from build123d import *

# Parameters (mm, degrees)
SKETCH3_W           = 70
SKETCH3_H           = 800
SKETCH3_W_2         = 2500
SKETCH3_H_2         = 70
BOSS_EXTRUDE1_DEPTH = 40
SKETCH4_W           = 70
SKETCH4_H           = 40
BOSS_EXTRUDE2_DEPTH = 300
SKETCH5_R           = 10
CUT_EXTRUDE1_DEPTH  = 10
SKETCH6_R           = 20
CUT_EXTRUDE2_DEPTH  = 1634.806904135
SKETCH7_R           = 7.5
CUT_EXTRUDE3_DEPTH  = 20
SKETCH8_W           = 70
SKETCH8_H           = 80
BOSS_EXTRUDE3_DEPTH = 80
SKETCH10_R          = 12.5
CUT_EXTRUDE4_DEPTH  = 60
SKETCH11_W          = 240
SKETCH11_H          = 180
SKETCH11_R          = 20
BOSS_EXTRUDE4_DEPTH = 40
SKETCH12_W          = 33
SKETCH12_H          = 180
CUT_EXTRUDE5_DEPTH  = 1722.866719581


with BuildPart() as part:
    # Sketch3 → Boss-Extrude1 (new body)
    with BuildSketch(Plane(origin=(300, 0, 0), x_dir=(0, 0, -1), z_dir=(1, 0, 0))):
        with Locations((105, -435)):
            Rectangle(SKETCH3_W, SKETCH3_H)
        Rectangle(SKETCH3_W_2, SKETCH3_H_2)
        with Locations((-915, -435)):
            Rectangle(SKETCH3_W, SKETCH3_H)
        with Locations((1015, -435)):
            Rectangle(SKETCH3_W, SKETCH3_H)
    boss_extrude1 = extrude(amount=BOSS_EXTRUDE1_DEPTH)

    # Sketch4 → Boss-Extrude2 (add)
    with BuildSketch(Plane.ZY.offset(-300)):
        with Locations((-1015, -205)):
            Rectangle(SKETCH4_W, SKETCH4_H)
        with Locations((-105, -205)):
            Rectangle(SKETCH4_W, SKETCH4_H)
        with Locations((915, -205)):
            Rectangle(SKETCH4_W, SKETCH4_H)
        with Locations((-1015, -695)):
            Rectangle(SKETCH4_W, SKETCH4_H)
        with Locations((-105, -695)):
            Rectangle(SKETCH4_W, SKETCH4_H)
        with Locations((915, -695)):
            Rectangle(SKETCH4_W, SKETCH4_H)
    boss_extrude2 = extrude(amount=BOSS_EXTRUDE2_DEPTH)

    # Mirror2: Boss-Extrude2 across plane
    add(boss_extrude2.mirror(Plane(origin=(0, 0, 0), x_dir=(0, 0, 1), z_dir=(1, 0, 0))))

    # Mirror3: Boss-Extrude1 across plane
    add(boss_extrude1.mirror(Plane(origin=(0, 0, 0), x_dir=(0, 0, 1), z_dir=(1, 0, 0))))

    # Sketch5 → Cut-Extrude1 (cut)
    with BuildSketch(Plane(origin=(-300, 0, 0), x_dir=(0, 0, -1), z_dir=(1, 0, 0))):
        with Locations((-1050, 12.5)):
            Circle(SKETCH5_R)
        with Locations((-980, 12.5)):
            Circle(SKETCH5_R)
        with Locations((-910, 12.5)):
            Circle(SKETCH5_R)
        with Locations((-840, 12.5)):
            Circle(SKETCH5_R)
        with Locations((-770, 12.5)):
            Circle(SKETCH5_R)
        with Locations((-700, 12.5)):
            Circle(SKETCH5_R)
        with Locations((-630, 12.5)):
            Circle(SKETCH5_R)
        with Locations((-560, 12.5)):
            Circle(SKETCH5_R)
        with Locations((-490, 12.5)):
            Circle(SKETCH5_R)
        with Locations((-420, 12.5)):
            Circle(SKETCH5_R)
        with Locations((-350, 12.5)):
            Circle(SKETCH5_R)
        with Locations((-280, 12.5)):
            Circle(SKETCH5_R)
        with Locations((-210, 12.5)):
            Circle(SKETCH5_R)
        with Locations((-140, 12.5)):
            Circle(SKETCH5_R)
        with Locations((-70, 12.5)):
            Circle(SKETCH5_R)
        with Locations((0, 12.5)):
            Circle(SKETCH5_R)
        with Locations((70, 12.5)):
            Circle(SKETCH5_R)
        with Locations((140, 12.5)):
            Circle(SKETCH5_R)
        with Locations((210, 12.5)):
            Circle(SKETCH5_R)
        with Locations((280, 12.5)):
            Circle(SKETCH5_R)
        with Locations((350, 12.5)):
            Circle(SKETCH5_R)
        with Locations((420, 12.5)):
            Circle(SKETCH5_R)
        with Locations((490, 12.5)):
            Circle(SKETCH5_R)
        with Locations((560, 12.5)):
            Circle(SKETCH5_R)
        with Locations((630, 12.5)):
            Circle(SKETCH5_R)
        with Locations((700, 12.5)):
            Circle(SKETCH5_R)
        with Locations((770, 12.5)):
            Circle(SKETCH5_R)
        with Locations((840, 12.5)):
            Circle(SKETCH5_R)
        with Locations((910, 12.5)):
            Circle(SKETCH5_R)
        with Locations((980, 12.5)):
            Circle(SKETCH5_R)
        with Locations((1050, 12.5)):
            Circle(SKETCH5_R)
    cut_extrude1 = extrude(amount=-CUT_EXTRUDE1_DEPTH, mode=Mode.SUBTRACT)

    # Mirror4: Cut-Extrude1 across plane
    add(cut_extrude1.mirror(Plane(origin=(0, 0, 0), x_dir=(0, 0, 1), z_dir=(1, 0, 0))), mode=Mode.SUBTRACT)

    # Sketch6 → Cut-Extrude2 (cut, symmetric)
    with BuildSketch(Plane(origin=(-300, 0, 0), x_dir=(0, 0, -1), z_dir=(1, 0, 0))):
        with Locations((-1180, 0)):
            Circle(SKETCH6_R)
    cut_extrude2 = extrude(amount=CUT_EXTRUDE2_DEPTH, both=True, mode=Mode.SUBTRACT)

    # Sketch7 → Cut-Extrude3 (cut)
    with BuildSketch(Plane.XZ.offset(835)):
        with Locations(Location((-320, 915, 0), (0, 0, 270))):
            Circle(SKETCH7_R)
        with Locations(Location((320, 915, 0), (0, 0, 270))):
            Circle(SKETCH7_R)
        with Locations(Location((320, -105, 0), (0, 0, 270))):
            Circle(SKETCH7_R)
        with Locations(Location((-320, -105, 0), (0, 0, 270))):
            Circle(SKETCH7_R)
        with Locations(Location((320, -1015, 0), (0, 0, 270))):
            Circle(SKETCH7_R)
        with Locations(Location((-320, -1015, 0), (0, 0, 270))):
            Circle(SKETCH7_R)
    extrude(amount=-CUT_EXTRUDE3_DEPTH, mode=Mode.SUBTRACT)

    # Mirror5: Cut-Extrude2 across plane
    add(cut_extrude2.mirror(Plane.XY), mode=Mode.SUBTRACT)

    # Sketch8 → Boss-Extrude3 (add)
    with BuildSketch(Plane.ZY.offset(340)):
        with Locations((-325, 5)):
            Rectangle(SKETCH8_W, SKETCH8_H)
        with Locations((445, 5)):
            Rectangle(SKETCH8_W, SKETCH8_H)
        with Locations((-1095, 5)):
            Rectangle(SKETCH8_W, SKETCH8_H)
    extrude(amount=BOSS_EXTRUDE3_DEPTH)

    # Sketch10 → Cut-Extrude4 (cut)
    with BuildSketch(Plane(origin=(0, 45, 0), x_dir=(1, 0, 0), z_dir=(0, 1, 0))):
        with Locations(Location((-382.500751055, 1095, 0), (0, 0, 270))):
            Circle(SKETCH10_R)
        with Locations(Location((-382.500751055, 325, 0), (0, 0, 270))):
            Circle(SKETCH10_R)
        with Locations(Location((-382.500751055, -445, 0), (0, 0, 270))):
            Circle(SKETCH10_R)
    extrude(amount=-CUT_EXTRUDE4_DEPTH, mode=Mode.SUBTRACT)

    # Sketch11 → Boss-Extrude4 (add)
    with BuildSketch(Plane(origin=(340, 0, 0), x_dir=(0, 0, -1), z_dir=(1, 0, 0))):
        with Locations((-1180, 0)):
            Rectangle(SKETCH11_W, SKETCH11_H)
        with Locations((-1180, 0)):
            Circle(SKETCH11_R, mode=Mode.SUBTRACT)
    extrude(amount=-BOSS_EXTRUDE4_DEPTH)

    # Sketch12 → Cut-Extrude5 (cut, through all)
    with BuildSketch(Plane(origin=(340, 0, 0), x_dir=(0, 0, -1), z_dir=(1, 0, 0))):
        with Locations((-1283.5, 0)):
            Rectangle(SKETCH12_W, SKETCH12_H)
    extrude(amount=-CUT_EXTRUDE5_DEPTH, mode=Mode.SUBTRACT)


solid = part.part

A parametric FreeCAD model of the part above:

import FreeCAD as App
import Part
import Sketcher

V = App.Vector

doc = App.newDocument("Part")
body = doc.addObject("PartDesign::Body", "Body")

# Sketch on YZ plane
sketch1 = doc.addObject("Sketcher::SketchObject", "Sketch")
body.addObject(sketch1)
sketch1.AttachmentSupport = (doc.YZ_Plane, [""])
sketch1.MapMode = "FlatFace"
sketch1.AttachmentOffset = App.Placement(V(0, 0, 300), App.Rotation())
sketch1.addGeometry(Part.LineSegment(V(-35, -70, 0), V(-835, -70, 0)), False)
sketch1.addGeometry(Part.LineSegment(V(-835, -70, 0), V(-835, -140, 0)), False)
sketch1.addGeometry(Part.LineSegment(V(-835, -140, 0), V(-35, -140, 0)), False)
sketch1.addGeometry(Part.LineSegment(V(-35, -140, 0), V(-35, -980, 0)), False)
sketch1.addGeometry(Part.LineSegment(V(-35, -980, 0), V(-835, -980, 0)), False)
sketch1.addGeometry(Part.LineSegment(V(-835, -980, 0), V(-835, -1050, 0)), False)
sketch1.addGeometry(Part.LineSegment(V(-835, -1050, 0), V(-35, -1050, 0)), False)
sketch1.addGeometry(Part.LineSegment(V(-35, -1050, 0), V(-35, -1250, 0)), False)
sketch1.addGeometry(Part.LineSegment(V(-35, -1250, 0), V(35, -1250, 0)), False)
sketch1.addGeometry(Part.LineSegment(V(35, -1250, 0), V(35, 1250, 0)), False)
sketch1.addGeometry(Part.LineSegment(V(35, 1250, 0), V(-35, 1250, 0)), False)
sketch1.addGeometry(Part.LineSegment(V(-35, 1250, 0), V(-35, 950, 0)), False)
sketch1.addGeometry(Part.LineSegment(V(-35, 950, 0), V(-835, 950, 0)), False)
sketch1.addGeometry(Part.LineSegment(V(-835, 950, 0), V(-835, 880, 0)), False)
sketch1.addGeometry(Part.LineSegment(V(-835, 880, 0), V(-35, 880, 0)), False)
sketch1.addGeometry(Part.LineSegment(V(-35, 880, 0), V(-35, -70, 0)), False)
sketch1.addConstraint(Sketcher.Constraint("Coincident", 0, 2, 1, 1))
sketch1.addConstraint(Sketcher.Constraint("Coincident", 1, 2, 2, 1))
sketch1.addConstraint(Sketcher.Constraint("Coincident", 2, 2, 3, 1))
sketch1.addConstraint(Sketcher.Constraint("Coincident", 3, 2, 4, 1))
sketch1.addConstraint(Sketcher.Constraint("Coincident", 4, 2, 5, 1))
sketch1.addConstraint(Sketcher.Constraint("Coincident", 5, 2, 6, 1))
sketch1.addConstraint(Sketcher.Constraint("Coincident", 6, 2, 7, 1))
sketch1.addConstraint(Sketcher.Constraint("Coincident", 7, 2, 8, 1))
sketch1.addConstraint(Sketcher.Constraint("Coincident", 8, 2, 9, 1))
sketch1.addConstraint(Sketcher.Constraint("Coincident", 9, 2, 10, 1))
sketch1.addConstraint(Sketcher.Constraint("Coincident", 10, 2, 11, 1))
sketch1.addConstraint(Sketcher.Constraint("Coincident", 11, 2, 12, 1))
sketch1.addConstraint(Sketcher.Constraint("Coincident", 12, 2, 13, 1))
sketch1.addConstraint(Sketcher.Constraint("Coincident", 13, 2, 14, 1))
sketch1.addConstraint(Sketcher.Constraint("Coincident", 14, 2, 15, 1))
sketch1.addConstraint(Sketcher.Constraint("Coincident", 15, 2, 0, 1))
sketch1.addConstraint(Sketcher.Constraint("Horizontal", 0))
sketch1.addConstraint(Sketcher.Constraint("Vertical", 1))
sketch1.addConstraint(Sketcher.Constraint("Horizontal", 2))
sketch1.addConstraint(Sketcher.Constraint("Vertical", 3))
sketch1.addConstraint(Sketcher.Constraint("Horizontal", 4))
sketch1.addConstraint(Sketcher.Constraint("Vertical", 5))
sketch1.addConstraint(Sketcher.Constraint("Horizontal", 6))
sketch1.addConstraint(Sketcher.Constraint("Vertical", 7))
sketch1.addConstraint(Sketcher.Constraint("Horizontal", 8))
sketch1.addConstraint(Sketcher.Constraint("Vertical", 9))
sketch1.addConstraint(Sketcher.Constraint("Horizontal", 10))
sketch1.addConstraint(Sketcher.Constraint("Vertical", 11))
sketch1.addConstraint(Sketcher.Constraint("Horizontal", 12))
sketch1.addConstraint(Sketcher.Constraint("Vertical", 13))
sketch1.addConstraint(Sketcher.Constraint("Horizontal", 14))
sketch1.addConstraint(Sketcher.Constraint("Vertical", 15))
sketch1.addConstraint(Sketcher.Constraint("Symmetric", 7, 2, 9, 2, -1, 1))
sketch1.addConstraint(Sketcher.Constraint("Vertical", 1, 2, 4, 2))
sketch1.addConstraint(Sketcher.Constraint("Vertical", 3, 2, 6, 2))
sketch1.addConstraint(Sketcher.Constraint("Vertical", 7, 2, 10, 2))
sketch1.addConstraint(Sketcher.Constraint("Vertical", 5, 2, 12, 2))
sketch1.addConstraint(Sketcher.Constraint("Vertical", 11, 2, 14, 2))
sketch1.addConstraint(Sketcher.Constraint("Equal", 10, 1))
sketch1.addConstraint(Sketcher.Constraint("Equal", 1, 5))
sketch1.addConstraint(Sketcher.Constraint("Equal", 5, 13))
sketch1.addConstraint(Sketcher.Constraint("DistanceX", 0, 2, 0, 1, 800.0))
sketch1.addConstraint(Sketcher.Constraint("DistanceX", 8, 1, 8, 2, 70.0))
sketch1.addConstraint(Sketcher.Constraint("DistanceY", 3, 2, 3, 1, 840.0))
sketch1.addConstraint(Sketcher.Constraint("DistanceY", 7, 2, 7, 1, 200.0))
sketch1.addConstraint(Sketcher.Constraint("DistanceY", 9, 1, 9, 2, 2500.0))
sketch1.addConstraint(Sketcher.Constraint("DistanceY", 11, 2, 11, 1, 300.0))
pad1 = doc.addObject("PartDesign::Pad", "Pad")
body.addObject(pad1)
pad1.Profile = sketch1
pad1.Length = 40

# Sketch on YZ plane
sketch2 = doc.addObject("Sketcher::SketchObject", "Sketch001")
body.addObject(sketch2)
sketch2.AttachmentSupport = (doc.YZ_Plane, [""])
sketch2.MapMode = "FlatFace"
sketch2.AttachmentOffset = App.Placement(V(0, 0, 300), App.Rotation())
sketch2.addGeometry(Part.LineSegment(V(-185, -1050, 0), V(-225, -1050, 0)), False)
sketch2.addGeometry(Part.LineSegment(V(-225, -1050, 0), V(-225, -980, 0)), False)
sketch2.addGeometry(Part.LineSegment(V(-225, -980, 0), V(-185, -980, 0)), False)
sketch2.addGeometry(Part.LineSegment(V(-185, -980, 0), V(-185, -1050, 0)), False)
sketch2.addGeometry(Part.LineSegment(V(-185, -140, 0), V(-225, -140, 0)), False)
sketch2.addGeometry(Part.LineSegment(V(-225, -140, 0), V(-225, -70, 0)), False)
sketch2.addGeometry(Part.LineSegment(V(-225, -70, 0), V(-185, -70, 0)), False)
sketch2.addGeometry(Part.LineSegment(V(-185, -70, 0), V(-185, -140, 0)), False)
sketch2.addGeometry(Part.LineSegment(V(-185, 880, 0), V(-225, 880, 0)), False)
sketch2.addGeometry(Part.LineSegment(V(-225, 880, 0), V(-225, 950, 0)), False)
sketch2.addGeometry(Part.LineSegment(V(-225, 950, 0), V(-185, 950, 0)), False)
sketch2.addGeometry(Part.LineSegment(V(-185, 950, 0), V(-185, 880, 0)), False)
sketch2.addGeometry(Part.LineSegment(V(-675, -1050, 0), V(-715, -1050, 0)), False)
sketch2.addGeometry(Part.LineSegment(V(-715, -1050, 0), V(-715, -980, 0)), False)
sketch2.addGeometry(Part.LineSegment(V(-715, -980, 0), V(-675, -980, 0)), False)
sketch2.addGeometry(Part.LineSegment(V(-675, -980, 0), V(-675, -1050, 0)), False)
sketch2.addGeometry(Part.LineSegment(V(-675, -140, 0), V(-715, -140, 0)), False)
sketch2.addGeometry(Part.LineSegment(V(-715, -140, 0), V(-715, -70, 0)), False)
sketch2.addGeometry(Part.LineSegment(V(-715, -70, 0), V(-675, -70, 0)), False)
sketch2.addGeometry(Part.LineSegment(V(-675, -70, 0), V(-675, -140, 0)), False)
sketch2.addGeometry(Part.LineSegment(V(-675, 880, 0), V(-715, 880, 0)), False)
sketch2.addGeometry(Part.LineSegment(V(-715, 880, 0), V(-715, 950, 0)), False)
sketch2.addGeometry(Part.LineSegment(V(-715, 950, 0), V(-675, 950, 0)), False)
sketch2.addGeometry(Part.LineSegment(V(-675, 950, 0), V(-675, 880, 0)), False)
sketch2.addConstraint(Sketcher.Constraint("Coincident", 0, 2, 1, 1))
sketch2.addConstraint(Sketcher.Constraint("Coincident", 1, 2, 2, 1))
sketch2.addConstraint(Sketcher.Constraint("Coincident", 2, 2, 3, 1))
sketch2.addConstraint(Sketcher.Constraint("Coincident", 3, 2, 0, 1))
sketch2.addConstraint(Sketcher.Constraint("Coincident", 4, 2, 5, 1))
sketch2.addConstraint(Sketcher.Constraint("Coincident", 5, 2, 6, 1))
sketch2.addConstraint(Sketcher.Constraint("Coincident", 6, 2, 7, 1))
sketch2.addConstraint(Sketcher.Constraint("Coincident", 7, 2, 4, 1))
sketch2.addConstraint(Sketcher.Constraint("Coincident", 8, 2, 9, 1))
sketch2.addConstraint(Sketcher.Constraint("Coincident", 9, 2, 10, 1))
sketch2.addConstraint(Sketcher.Constraint("Coincident", 10, 2, 11, 1))
sketch2.addConstraint(Sketcher.Constraint("Coincident", 11, 2, 8, 1))
sketch2.addConstraint(Sketcher.Constraint("Coincident", 12, 2, 13, 1))
sketch2.addConstraint(Sketcher.Constraint("Coincident", 13, 2, 14, 1))
sketch2.addConstraint(Sketcher.Constraint("Coincident", 14, 2, 15, 1))
sketch2.addConstraint(Sketcher.Constraint("Coincident", 15, 2, 12, 1))
sketch2.addConstraint(Sketcher.Constraint("Coincident", 16, 2, 17, 1))
sketch2.addConstraint(Sketcher.Constraint("Coincident", 17, 2, 18, 1))
sketch2.addConstraint(Sketcher.Constraint("Coincident", 18, 2, 19, 1))
sketch2.addConstraint(Sketcher.Constraint("Coincident", 19, 2, 16, 1))
sketch2.addConstraint(Sketcher.Constraint("Coincident", 20, 2, 21, 1))
sketch2.addConstraint(Sketcher.Constraint("Coincident", 21, 2, 22, 1))
sketch2.addConstraint(Sketcher.Constraint("Coincident", 22, 2, 23, 1))
sketch2.addConstraint(Sketcher.Constraint("Coincident", 23, 2, 20, 1))
sketch2.addConstraint(Sketcher.Constraint("Horizontal", 0))
sketch2.addConstraint(Sketcher.Constraint("Vertical", 1))
sketch2.addConstraint(Sketcher.Constraint("Horizontal", 2))
sketch2.addConstraint(Sketcher.Constraint("Vertical", 3))
sketch2.addConstraint(Sketcher.Constraint("Horizontal", 4))
sketch2.addConstraint(Sketcher.Constraint("Vertical", 5))
sketch2.addConstraint(Sketcher.Constraint("Horizontal", 6))
sketch2.addConstraint(Sketcher.Constraint("Vertical", 7))
sketch2.addConstraint(Sketcher.Constraint("Horizontal", 8))
sketch2.addConstraint(Sketcher.Constraint("Vertical", 9))
sketch2.addConstraint(Sketcher.Constraint("Horizontal", 10))
sketch2.addConstraint(Sketcher.Constraint("Vertical", 11))
sketch2.addConstraint(Sketcher.Constraint("Horizontal", 12))
sketch2.addConstraint(Sketcher.Constraint("Vertical", 13))
sketch2.addConstraint(Sketcher.Constraint("Horizontal", 14))
sketch2.addConstraint(Sketcher.Constraint("Vertical", 15))
sketch2.addConstraint(Sketcher.Constraint("Horizontal", 16))
sketch2.addConstraint(Sketcher.Constraint("Vertical", 17))
sketch2.addConstraint(Sketcher.Constraint("Horizontal", 18))
sketch2.addConstraint(Sketcher.Constraint("Vertical", 19))
sketch2.addConstraint(Sketcher.Constraint("Horizontal", 20))
sketch2.addConstraint(Sketcher.Constraint("Vertical", 21))
sketch2.addConstraint(Sketcher.Constraint("Horizontal", 22))
sketch2.addConstraint(Sketcher.Constraint("Vertical", 23))
sketch2.addConstraint(Sketcher.Constraint("Horizontal", 3, 2, 12, 2))
sketch2.addConstraint(Sketcher.Constraint("Horizontal", 2, 2, 13, 2))
sketch2.addConstraint(Sketcher.Constraint("Horizontal", 7, 2, 16, 2))
sketch2.addConstraint(Sketcher.Constraint("Horizontal", 6, 2, 17, 2))
sketch2.addConstraint(Sketcher.Constraint("Horizontal", 11, 2, 20, 2))
sketch2.addConstraint(Sketcher.Constraint("Horizontal", 10, 2, 21, 2))
sketch2.addConstraint(Sketcher.Constraint("Vertical", 1, 2, 4, 2))
sketch2.addConstraint(Sketcher.Constraint("Vertical", 3, 2, 6, 2))
sketch2.addConstraint(Sketcher.Constraint("Vertical", 5, 2, 8, 2))
sketch2.addConstraint(Sketcher.Constraint("Vertical", 7, 2, 10, 2))
sketch2.addConstraint(Sketcher.Constraint("Vertical", 13, 2, 16, 2))
sketch2.addConstraint(Sketcher.Constraint("Vertical", 15, 2, 18, 2))
sketch2.addConstraint(Sketcher.Constraint("Vertical", 17, 2, 20, 2))
sketch2.addConstraint(Sketcher.Constraint("Vertical", 19, 2, 22, 2))
sketch2.addConstraint(Sketcher.Constraint("Equal", 10, 12))
sketch2.addConstraint(Sketcher.Constraint("Equal", 3, 5))
sketch2.addConstraint(Sketcher.Constraint("Equal", 7, 9))
sketch2.addConstraint(Sketcher.Constraint("DistanceX", 0, 2, 0, 1, 40.0))
sketch2.addConstraint(Sketcher.Constraint("DistanceY", 1, 1, 1, 2, 70.0))
sketch2.addConstraint(Sketcher.Constraint("DistanceX", 0, 2, -1, 1, 225.0))
sketch2.addConstraint(Sketcher.Constraint("DistanceY", 0, 2, -1, 1, 1050.0))
sketch2.addConstraint(Sketcher.Constraint("DistanceY", 4, 2, -1, 1, 140.0))
sketch2.addConstraint(Sketcher.Constraint("DistanceY", -1, 1, 8, 2, 880.0))
sketch2.addConstraint(Sketcher.Constraint("DistanceX", 12, 2, -1, 1, 715.0))
pad2 = doc.addObject("PartDesign::Pad", "Pad001")
body.addObject(pad2)
pad2.Profile = sketch2
pad2.Length = 300
pad2.Reversed = True
doc.recompute()

mirrored = doc.addObject("PartDesign::Mirrored", "Mirrored")
body.addObject(mirrored)
mirrored.Originals = [pad2]
mirrored.MirrorPlane = (doc.YZ_Plane, [""])
body.Tip = mirrored
doc.recompute()

mirrored2 = doc.addObject("PartDesign::Mirrored", "Mirrored001")
body.addObject(mirrored2)
mirrored2.Originals = [pad1]
mirrored2.MirrorPlane = (doc.YZ_Plane, [""])
body.Tip = mirrored2

# Sketch on YZ plane
sketch3 = doc.addObject("Sketcher::SketchObject", "Sketch002")
body.addObject(sketch3)
sketch3.AttachmentSupport = (doc.YZ_Plane, [""])
sketch3.MapMode = "FlatFace"
sketch3.AttachmentOffset = App.Placement(V(0, 0, -300), App.Rotation())
sketch3.addGeometry(Part.Circle(V(12, 1050, 0), V(0, 0, 1), 10), False)
sketch3.addGeometry(Part.Circle(V(12, 980, 0), V(0, 0, 1), 10), False)
sketch3.addGeometry(Part.Circle(V(12, 910, 0), V(0, 0, 1), 10), False)
sketch3.addGeometry(Part.Circle(V(12, 840, 0), V(0, 0, 1), 10), False)
sketch3.addGeometry(Part.Circle(V(12, 770, 0), V(0, 0, 1), 10), False)
sketch3.addGeometry(Part.Circle(V(12, 700, 0), V(0, 0, 1), 10), False)
sketch3.addGeometry(Part.Circle(V(12, 630, 0), V(0, 0, 1), 10), False)
sketch3.addGeometry(Part.Circle(V(12, 560, 0), V(0, 0, 1), 10), False)
sketch3.addGeometry(Part.Circle(V(12, 490, 0), V(0, 0, 1), 10), False)
sketch3.addGeometry(Part.Circle(V(12, 420, 0), V(0, 0, 1), 10), False)
sketch3.addGeometry(Part.Circle(V(12, 350, 0), V(0, 0, 1), 10), False)
sketch3.addGeometry(Part.Circle(V(12, 280, 0), V(0, 0, 1), 10), False)
sketch3.addGeometry(Part.Circle(V(12, 210, 0), V(0, 0, 1), 10), False)
sketch3.addGeometry(Part.Circle(V(12, 140, 0), V(0, 0, 1), 10), False)
sketch3.addGeometry(Part.Circle(V(12, 70, 0), V(0, 0, 1), 10), False)
sketch3.addGeometry(Part.Circle(V(12, 0, 0), V(0, 0, 1), 10), False)
sketch3.addGeometry(Part.Circle(V(12, -70, 0), V(0, 0, 1), 10), False)
sketch3.addGeometry(Part.Circle(V(12, -140, 0), V(0, 0, 1), 10), False)
sketch3.addGeometry(Part.Circle(V(12, -210, 0), V(0, 0, 1), 10), False)
sketch3.addGeometry(Part.Circle(V(12, -280, 0), V(0, 0, 1), 10), False)
sketch3.addGeometry(Part.Circle(V(12, -350, 0), V(0, 0, 1), 10), False)
sketch3.addGeometry(Part.Circle(V(12, -420, 0), V(0, 0, 1), 10), False)
sketch3.addGeometry(Part.Circle(V(12, -490, 0), V(0, 0, 1), 10), False)
sketch3.addGeometry(Part.Circle(V(12, -560, 0), V(0, 0, 1), 10), False)
sketch3.addGeometry(Part.Circle(V(12, -630, 0), V(0, 0, 1), 10), False)
sketch3.addGeometry(Part.Circle(V(12, -700, 0), V(0, 0, 1), 10), False)
sketch3.addGeometry(Part.Circle(V(12, -770, 0), V(0, 0, 1), 10), False)
sketch3.addGeometry(Part.Circle(V(12, -840, 0), V(0, 0, 1), 10), False)
sketch3.addGeometry(Part.Circle(V(12, -910, 0), V(0, 0, 1), 10), False)
sketch3.addGeometry(Part.Circle(V(12, -980, 0), V(0, 0, 1), 10), False)
sketch3.addGeometry(Part.Circle(V(12, -1050, 0), V(0, 0, 1), 10), False)
sketch3.addConstraint(Sketcher.Constraint("Equal", 0, 1))
sketch3.addConstraint(Sketcher.Constraint("Equal", 1, 2))
sketch3.addConstraint(Sketcher.Constraint("Equal", 2, 3))
sketch3.addConstraint(Sketcher.Constraint("Equal", 3, 4))
sketch3.addConstraint(Sketcher.Constraint("Equal", 4, 5))
sketch3.addConstraint(Sketcher.Constraint("Equal", 5, 6))
sketch3.addConstraint(Sketcher.Constraint("Equal", 6, 7))
sketch3.addConstraint(Sketcher.Constraint("Equal", 7, 8))
sketch3.addConstraint(Sketcher.Constraint("Equal", 8, 9))
sketch3.addConstraint(Sketcher.Constraint("Equal", 9, 10))
sketch3.addConstraint(Sketcher.Constraint("Equal", 10, 11))
sketch3.addConstraint(Sketcher.Constraint("Equal", 11, 12))
sketch3.addConstraint(Sketcher.Constraint("Equal", 12, 13))
sketch3.addConstraint(Sketcher.Constraint("Equal", 13, 14))
sketch3.addConstraint(Sketcher.Constraint("Equal", 14, 15))
sketch3.addConstraint(Sketcher.Constraint("Equal", 15, 16))
sketch3.addConstraint(Sketcher.Constraint("Equal", 16, 17))
sketch3.addConstraint(Sketcher.Constraint("Equal", 17, 18))
sketch3.addConstraint(Sketcher.Constraint("Equal", 18, 19))
sketch3.addConstraint(Sketcher.Constraint("Equal", 19, 20))
sketch3.addConstraint(Sketcher.Constraint("Equal", 20, 21))
sketch3.addConstraint(Sketcher.Constraint("Equal", 21, 22))
sketch3.addConstraint(Sketcher.Constraint("Equal", 22, 23))
sketch3.addConstraint(Sketcher.Constraint("Equal", 23, 24))
sketch3.addConstraint(Sketcher.Constraint("Equal", 24, 25))
sketch3.addConstraint(Sketcher.Constraint("Equal", 25, 26))
sketch3.addConstraint(Sketcher.Constraint("Equal", 26, 27))
sketch3.addConstraint(Sketcher.Constraint("Equal", 27, 28))
sketch3.addConstraint(Sketcher.Constraint("Equal", 28, 29))
sketch3.addConstraint(Sketcher.Constraint("Equal", 29, 30))
sketch3.addConstraint(Sketcher.Constraint("Symmetric", 14, 3, 16, 3, -1))
sketch3.addConstraint(Sketcher.Constraint("Symmetric", 13, 3, 17, 3, -1))
sketch3.addConstraint(Sketcher.Constraint("Symmetric", 12, 3, 18, 3, -1))
sketch3.addConstraint(Sketcher.Constraint("Symmetric", 11, 3, 19, 3, -1))
sketch3.addConstraint(Sketcher.Constraint("Symmetric", 10, 3, 20, 3, -1))
sketch3.addConstraint(Sketcher.Constraint("Symmetric", 9, 3, 21, 3, -1))
sketch3.addConstraint(Sketcher.Constraint("Symmetric", 8, 3, 22, 3, -1))
sketch3.addConstraint(Sketcher.Constraint("Symmetric", 7, 3, 23, 3, -1))
sketch3.addConstraint(Sketcher.Constraint("Symmetric", 6, 3, 24, 3, -1))
sketch3.addConstraint(Sketcher.Constraint("Symmetric", 5, 3, 25, 3, -1))
sketch3.addConstraint(Sketcher.Constraint("Symmetric", 4, 3, 26, 3, -1))
sketch3.addConstraint(Sketcher.Constraint("Symmetric", 3, 3, 27, 3, -1))
sketch3.addConstraint(Sketcher.Constraint("Symmetric", 2, 3, 28, 3, -1))
sketch3.addConstraint(Sketcher.Constraint("Symmetric", 1, 3, 29, 3, -1))
sketch3.addConstraint(Sketcher.Constraint("Symmetric", 0, 3, 30, 3, -1))
sketch3.addConstraint(Sketcher.Constraint("PointOnObject", 15, 3, -1))
sketch3.addConstraint(Sketcher.Constraint("Vertical", 0, 3, 1, 3))
sketch3.addConstraint(Sketcher.Constraint("Vertical", 1, 3, 2, 3))
sketch3.addConstraint(Sketcher.Constraint("Vertical", 2, 3, 3, 3))
sketch3.addConstraint(Sketcher.Constraint("Vertical", 3, 3, 4, 3))
sketch3.addConstraint(Sketcher.Constraint("Vertical", 4, 3, 5, 3))
sketch3.addConstraint(Sketcher.Constraint("Vertical", 5, 3, 6, 3))
sketch3.addConstraint(Sketcher.Constraint("Vertical", 6, 3, 7, 3))
sketch3.addConstraint(Sketcher.Constraint("Vertical", 7, 3, 8, 3))
sketch3.addConstraint(Sketcher.Constraint("Vertical", 8, 3, 9, 3))
sketch3.addConstraint(Sketcher.Constraint("Vertical", 9, 3, 10, 3))
sketch3.addConstraint(Sketcher.Constraint("Vertical", 10, 3, 11, 3))
sketch3.addConstraint(Sketcher.Constraint("Vertical", 11, 3, 12, 3))
sketch3.addConstraint(Sketcher.Constraint("Vertical", 12, 3, 13, 3))
sketch3.addConstraint(Sketcher.Constraint("Vertical", 13, 3, 14, 3))
sketch3.addConstraint(Sketcher.Constraint("Vertical", 14, 3, 15, 3))
sketch3.addConstraint(Sketcher.Constraint("Diameter", 0, 20.0))
sketch3.addConstraint(Sketcher.Constraint("DistanceY", -1, 1, 0, 3, 1050.0))
sketch3.addConstraint(Sketcher.Constraint("DistanceY", -1, 1, 1, 3, 980.0))
sketch3.addConstraint(Sketcher.Constraint("DistanceY", -1, 1, 2, 3, 910.0))
sketch3.addConstraint(Sketcher.Constraint("DistanceY", -1, 1, 3, 3, 840.0))
sketch3.addConstraint(Sketcher.Constraint("DistanceY", -1, 1, 4, 3, 770.0))
sketch3.addConstraint(Sketcher.Constraint("DistanceY", -1, 1, 5, 3, 700.0))
sketch3.addConstraint(Sketcher.Constraint("DistanceY", -1, 1, 6, 3, 630.0))
sketch3.addConstraint(Sketcher.Constraint("DistanceY", -1, 1, 7, 3, 560.0))
sketch3.addConstraint(Sketcher.Constraint("DistanceY", -1, 1, 8, 3, 490.0))
sketch3.addConstraint(Sketcher.Constraint("DistanceY", -1, 1, 9, 3, 420.0))
sketch3.addConstraint(Sketcher.Constraint("DistanceY", -1, 1, 10, 3, 350.0))
sketch3.addConstraint(Sketcher.Constraint("DistanceY", -1, 1, 11, 3, 280.0))
sketch3.addConstraint(Sketcher.Constraint("DistanceY", -1, 1, 12, 3, 210.0))
sketch3.addConstraint(Sketcher.Constraint("DistanceY", -1, 1, 13, 3, 140.0))
sketch3.addConstraint(Sketcher.Constraint("DistanceY", -1, 1, 14, 3, 70.0))
sketch3.addConstraint(Sketcher.Constraint("DistanceX", -1, 1, 0, 3, 12.5))
pocket1 = doc.addObject("PartDesign::Pocket", "Pocket")
body.addObject(pocket1)
pocket1.Profile = sketch3
pocket1.Length = 10
doc.recompute()

mirrored3 = doc.addObject("PartDesign::Mirrored", "Mirrored002")
body.addObject(mirrored3)
mirrored3.Originals = [pocket1]
mirrored3.MirrorPlane = (doc.YZ_Plane, [""])
body.Tip = mirrored3

# Sketch on YZ plane
sketch4 = doc.addObject("Sketcher::SketchObject", "Sketch003")
body.addObject(sketch4)
sketch4.AttachmentSupport = (doc.YZ_Plane, [""])
sketch4.MapMode = "FlatFace"
sketch4.AttachmentOffset = App.Placement(V(0, 0, -300), App.Rotation())
sketch4.addGeometry(Part.Circle(V(0, 1180, 0), V(0, 0, 1), 20), False)
sketch4.addConstraint(Sketcher.Constraint("PointOnObject", 0, 3, -2))
sketch4.addConstraint(Sketcher.Constraint("Diameter", 0, 40.0))
sketch4.addConstraint(Sketcher.Constraint("DistanceY", -1, 1, 0, 3, 1180.0))
pocket2 = doc.addObject("PartDesign::Pocket", "Pocket001")
body.addObject(pocket2)
pocket2.Profile = sketch4
pocket2.Length = 3269.613808
pocket2.Midplane = True

# Sketch on XZ plane
sketch5 = doc.addObject("Sketcher::SketchObject", "Sketch004")
body.addObject(sketch5)
sketch5.AttachmentSupport = (doc.XZ_Plane, [""])
sketch5.MapMode = "FlatFace"
sketch5.AttachmentOffset = App.Placement(V(0, 0, 835), App.Rotation())
sketch5.addGeometry(Part.Circle(V(-320, 915, 0), V(0, 0, 1), 8), False)
sketch5.addGeometry(Part.Circle(V(320, 915, 0), V(0, 0, 1), 8), False)
sketch5.addGeometry(Part.Circle(V(320, -105, 0), V(0, 0, 1), 8), False)
sketch5.addGeometry(Part.Circle(V(-320, -105, 0), V(0, 0, 1), 8), False)
sketch5.addGeometry(Part.Circle(V(320, -1015, 0), V(0, 0, 1), 8), False)
sketch5.addGeometry(Part.Circle(V(-320, -1015, 0), V(0, 0, 1), 8), False)
sketch5.addConstraint(Sketcher.Constraint("Equal", 0, 1))
sketch5.addConstraint(Sketcher.Constraint("Equal", 1, 2))
sketch5.addConstraint(Sketcher.Constraint("Equal", 2, 3))
sketch5.addConstraint(Sketcher.Constraint("Equal", 3, 4))
sketch5.addConstraint(Sketcher.Constraint("Equal", 4, 5))
sketch5.addConstraint(Sketcher.Constraint("Symmetric", 0, 3, 1, 3, -2))
sketch5.addConstraint(Sketcher.Constraint("Symmetric", 2, 3, 3, 3, -2))
sketch5.addConstraint(Sketcher.Constraint("Symmetric", 4, 3, 5, 3, -2))
sketch5.addConstraint(Sketcher.Constraint("Vertical", 1, 3, 2, 3))
sketch5.addConstraint(Sketcher.Constraint("Vertical", 2, 3, 4, 3))
sketch5.addConstraint(Sketcher.Constraint("Diameter", 0, 15.0))
sketch5.addConstraint(Sketcher.Constraint("DistanceX", 0, 3, -1, 1, 320.0))
sketch5.addConstraint(Sketcher.Constraint("DistanceY", -1, 1, 0, 3, 915.0))
sketch5.addConstraint(Sketcher.Constraint("DistanceY", 2, 3, -1, 1, 105.0))
sketch5.addConstraint(Sketcher.Constraint("DistanceY", 4, 3, -1, 1, 1015.0))
pocket3 = doc.addObject("PartDesign::Pocket", "Pocket002")
body.addObject(pocket3)
pocket3.Profile = sketch5
pocket3.Length = 20
doc.recompute()

mirrored4 = doc.addObject("PartDesign::Mirrored", "Mirrored003")
body.addObject(mirrored4)
mirrored4.Originals = [pocket2]
mirrored4.MirrorPlane = (doc.XY_Plane, [""])
body.Tip = mirrored4

# Sketch on YZ plane
sketch6 = doc.addObject("Sketcher::SketchObject", "Sketch005")
body.addObject(sketch6)
sketch6.AttachmentSupport = (doc.YZ_Plane, [""])
sketch6.MapMode = "FlatFace"
sketch6.AttachmentOffset = App.Placement(V(0, 0, -340), App.Rotation())
sketch6.addGeometry(Part.LineSegment(V(45, -360, 0), V(-35, -360, 0)), False)
sketch6.addGeometry(Part.LineSegment(V(-35, -360, 0), V(-35, -290, 0)), False)
sketch6.addGeometry(Part.LineSegment(V(-35, -290, 0), V(45, -290, 0)), False)
sketch6.addGeometry(Part.LineSegment(V(45, -290, 0), V(45, -360, 0)), False)
sketch6.addGeometry(Part.LineSegment(V(45, 410, 0), V(-35, 410, 0)), False)
sketch6.addGeometry(Part.LineSegment(V(-35, 410, 0), V(-35, 480, 0)), False)
sketch6.addGeometry(Part.LineSegment(V(-35, 480, 0), V(45, 480, 0)), False)
sketch6.addGeometry(Part.LineSegment(V(45, 480, 0), V(45, 410, 0)), False)
sketch6.addGeometry(Part.LineSegment(V(45, -1130, 0), V(-35, -1130, 0)), False)
sketch6.addGeometry(Part.LineSegment(V(-35, -1130, 0), V(-35, -1060, 0)), False)
sketch6.addGeometry(Part.LineSegment(V(-35, -1060, 0), V(45, -1060, 0)), False)
sketch6.addGeometry(Part.LineSegment(V(45, -1060, 0), V(45, -1130, 0)), False)
sketch6.addConstraint(Sketcher.Constraint("Coincident", 0, 2, 1, 1))
sketch6.addConstraint(Sketcher.Constraint("Coincident", 1, 2, 2, 1))
sketch6.addConstraint(Sketcher.Constraint("Coincident", 2, 2, 3, 1))
sketch6.addConstraint(Sketcher.Constraint("Coincident", 3, 2, 0, 1))
sketch6.addConstraint(Sketcher.Constraint("Coincident", 4, 2, 5, 1))
sketch6.addConstraint(Sketcher.Constraint("Coincident", 5, 2, 6, 1))
sketch6.addConstraint(Sketcher.Constraint("Coincident", 6, 2, 7, 1))
sketch6.addConstraint(Sketcher.Constraint("Coincident", 7, 2, 4, 1))
sketch6.addConstraint(Sketcher.Constraint("Coincident", 8, 2, 9, 1))
sketch6.addConstraint(Sketcher.Constraint("Coincident", 9, 2, 10, 1))
sketch6.addConstraint(Sketcher.Constraint("Coincident", 10, 2, 11, 1))
sketch6.addConstraint(Sketcher.Constraint("Coincident", 11, 2, 8, 1))
sketch6.addConstraint(Sketcher.Constraint("Horizontal", 0))
sketch6.addConstraint(Sketcher.Constraint("Vertical", 1))
sketch6.addConstraint(Sketcher.Constraint("Horizontal", 2))
sketch6.addConstraint(Sketcher.Constraint("Vertical", 3))
sketch6.addConstraint(Sketcher.Constraint("Horizontal", 4))
sketch6.addConstraint(Sketcher.Constraint("Vertical", 5))
sketch6.addConstraint(Sketcher.Constraint("Horizontal", 6))
sketch6.addConstraint(Sketcher.Constraint("Vertical", 7))
sketch6.addConstraint(Sketcher.Constraint("Horizontal", 8))
sketch6.addConstraint(Sketcher.Constraint("Vertical", 9))
sketch6.addConstraint(Sketcher.Constraint("Horizontal", 10))
sketch6.addConstraint(Sketcher.Constraint("Vertical", 11))
sketch6.addConstraint(Sketcher.Constraint("Vertical", 1, 2, 4, 2))
sketch6.addConstraint(Sketcher.Constraint("Vertical", 3, 2, 6, 2))
sketch6.addConstraint(Sketcher.Constraint("Vertical", 5, 2, 8, 2))
sketch6.addConstraint(Sketcher.Constraint("Vertical", 7, 2, 10, 2))
sketch6.addConstraint(Sketcher.Constraint("Equal", 3, 5))
sketch6.addConstraint(Sketcher.Constraint("Equal", 7, 9))
sketch6.addConstraint(Sketcher.Constraint("DistanceX", 0, 2, 0, 1, 80.0))
sketch6.addConstraint(Sketcher.Constraint("DistanceY", 1, 1, 1, 2, 70.0))
sketch6.addConstraint(Sketcher.Constraint("DistanceX", 0, 2, -1, 1, 35.0))
sketch6.addConstraint(Sketcher.Constraint("DistanceY", 0, 2, -1, 1, 360.0))
sketch6.addConstraint(Sketcher.Constraint("DistanceY", -1, 1, 4, 2, 410.0))
sketch6.addConstraint(Sketcher.Constraint("DistanceY", 8, 2, -1, 1, 1130.0))
pad3 = doc.addObject("PartDesign::Pad", "Pad002")
body.addObject(pad3)
pad3.Profile = sketch6
pad3.Length = 80
pad3.Reversed = True

# Sketch on XZ plane
sketch7 = doc.addObject("Sketcher::SketchObject", "Sketch006")
body.addObject(sketch7)
sketch7.AttachmentSupport = (doc.XZ_Plane, [""])
sketch7.MapMode = "FlatFace"
sketch7.AttachmentOffset = App.Placement(V(0, 0, -45), App.Rotation())
sketch7.addGeometry(Part.Circle(V(-383, -1095, 0), V(0, 0, 1), 12), False)
sketch7.addGeometry(Part.Circle(V(-383, -325, 0), V(0, 0, 1), 12), False)
sketch7.addGeometry(Part.Circle(V(-383, 445, 0), V(0, 0, 1), 12), False)
sketch7.addConstraint(Sketcher.Constraint("Equal", 0, 1))
sketch7.addConstraint(Sketcher.Constraint("Equal", 1, 2))
sketch7.addConstraint(Sketcher.Constraint("Vertical", 0, 3, 1, 3))
sketch7.addConstraint(Sketcher.Constraint("Vertical", 1, 3, 2, 3))
sketch7.addConstraint(Sketcher.Constraint("Diameter", 0, 25.0))
sketch7.addConstraint(Sketcher.Constraint("DistanceY", 0, 3, -1, 1, 1095.0))
sketch7.addConstraint(Sketcher.Constraint("DistanceY", 1, 3, -1, 1, 325.0))
sketch7.addConstraint(Sketcher.Constraint("DistanceY", -1, 1, 2, 3, 445.0))
sketch7.addConstraint(Sketcher.Constraint("DistanceX", 0, 3, -1, 1, 382.500751))
pocket4 = doc.addObject("PartDesign::Pocket", "Pocket003")
body.addObject(pocket4)
pocket4.Profile = sketch7
pocket4.Length = 60
pocket4.Reversed = True

# Sketch on YZ plane
sketch8 = doc.addObject("Sketcher::SketchObject", "Sketch007")
body.addObject(sketch8)
sketch8.AttachmentSupport = (doc.YZ_Plane, [""])
sketch8.MapMode = "FlatFace"
sketch8.AttachmentOffset = App.Placement(V(0, 0, 340), App.Rotation())
sketch8.addGeometry(Part.LineSegment(V(90, 1300, 0), V(-90, 1300, 0)), False)
sketch8.addGeometry(Part.LineSegment(V(-90, 1300, 0), V(-90, 1060, 0)), False)
sketch8.addGeometry(Part.LineSegment(V(-90, 1060, 0), V(90, 1060, 0)), False)
sketch8.addGeometry(Part.LineSegment(V(90, 1060, 0), V(90, 1300, 0)), False)
sketch8.addGeometry(Part.Circle(V(0, 1180, 0), V(0, 0, 1), 20), False)
sketch8.addConstraint(Sketcher.Constraint("Coincident", 0, 2, 1, 1))
sketch8.addConstraint(Sketcher.Constraint("Coincident", 1, 2, 2, 1))
sketch8.addConstraint(Sketcher.Constraint("Coincident", 2, 2, 3, 1))
sketch8.addConstraint(Sketcher.Constraint("Coincident", 3, 2, 0, 1))
sketch8.addConstraint(Sketcher.Constraint("Horizontal", 0))
sketch8.addConstraint(Sketcher.Constraint("Vertical", 1))
sketch8.addConstraint(Sketcher.Constraint("Horizontal", 2))
sketch8.addConstraint(Sketcher.Constraint("Vertical", 3))
sketch8.addConstraint(Sketcher.Constraint("PointOnObject", 4, 3, -2))
sketch8.addConstraint(Sketcher.Constraint("Diameter", 4, 40.0))
sketch8.addConstraint(Sketcher.Constraint("DistanceX", 0, 2, 0, 1, 180.0))
sketch8.addConstraint(Sketcher.Constraint("DistanceY", 1, 2, 1, 1, 240.0))
sketch8.addConstraint(Sketcher.Constraint("DistanceY", -1, 1, 4, 3, 1180.0))
sketch8.addConstraint(Sketcher.Constraint("DistanceX", 0, 2, -1, 1, 90.0))
sketch8.addConstraint(Sketcher.Constraint("DistanceY", -1, 1, 0, 2, 1300.0))
pad4 = doc.addObject("PartDesign::Pad", "Pad003")
body.addObject(pad4)
pad4.Profile = sketch8
pad4.Length = 40
pad4.Reversed = True

# Sketch on YZ plane
sketch9 = doc.addObject("Sketcher::SketchObject", "Sketch008")
body.addObject(sketch9)
sketch9.AttachmentSupport = (doc.YZ_Plane, [""])
sketch9.MapMode = "FlatFace"
sketch9.AttachmentOffset = App.Placement(V(0, 0, 340), App.Rotation())
sketch9.addGeometry(Part.LineSegment(V(90, 1300, 0), V(-90, 1300, 0)), False)
sketch9.addGeometry(Part.LineSegment(V(-90, 1300, 0), V(-90, 1267, 0)), False)
sketch9.addGeometry(Part.LineSegment(V(-90, 1267, 0), V(90, 1267, 0)), False)
sketch9.addGeometry(Part.LineSegment(V(90, 1267, 0), V(90, 1300, 0)), False)
sketch9.addConstraint(Sketcher.Constraint("Coincident", 0, 2, 1, 1))
sketch9.addConstraint(Sketcher.Constraint("Coincident", 1, 2, 2, 1))
sketch9.addConstraint(Sketcher.Constraint("Coincident", 2, 2, 3, 1))
sketch9.addConstraint(Sketcher.Constraint("Coincident", 3, 2, 0, 1))
sketch9.addConstraint(Sketcher.Constraint("Horizontal", 0))
sketch9.addConstraint(Sketcher.Constraint("Vertical", 1))
sketch9.addConstraint(Sketcher.Constraint("Horizontal", 2))
sketch9.addConstraint(Sketcher.Constraint("Vertical", 3))
sketch9.addConstraint(Sketcher.Constraint("DistanceX", 0, 2, 0, 1, 180.0))
sketch9.addConstraint(Sketcher.Constraint("DistanceY", 1, 2, 1, 1, 33.0))
sketch9.addConstraint(Sketcher.Constraint("DistanceX", 0, 2, -1, 1, 90.0))
sketch9.addConstraint(Sketcher.Constraint("DistanceY", -1, 1, 0, 2, 1300.0))
pocket5 = doc.addObject("PartDesign::Pocket", "Pocket004")
body.addObject(pocket5)
pocket5.Profile = sketch9
pocket5.Type = "ThroughAll"

doc.recompute()
